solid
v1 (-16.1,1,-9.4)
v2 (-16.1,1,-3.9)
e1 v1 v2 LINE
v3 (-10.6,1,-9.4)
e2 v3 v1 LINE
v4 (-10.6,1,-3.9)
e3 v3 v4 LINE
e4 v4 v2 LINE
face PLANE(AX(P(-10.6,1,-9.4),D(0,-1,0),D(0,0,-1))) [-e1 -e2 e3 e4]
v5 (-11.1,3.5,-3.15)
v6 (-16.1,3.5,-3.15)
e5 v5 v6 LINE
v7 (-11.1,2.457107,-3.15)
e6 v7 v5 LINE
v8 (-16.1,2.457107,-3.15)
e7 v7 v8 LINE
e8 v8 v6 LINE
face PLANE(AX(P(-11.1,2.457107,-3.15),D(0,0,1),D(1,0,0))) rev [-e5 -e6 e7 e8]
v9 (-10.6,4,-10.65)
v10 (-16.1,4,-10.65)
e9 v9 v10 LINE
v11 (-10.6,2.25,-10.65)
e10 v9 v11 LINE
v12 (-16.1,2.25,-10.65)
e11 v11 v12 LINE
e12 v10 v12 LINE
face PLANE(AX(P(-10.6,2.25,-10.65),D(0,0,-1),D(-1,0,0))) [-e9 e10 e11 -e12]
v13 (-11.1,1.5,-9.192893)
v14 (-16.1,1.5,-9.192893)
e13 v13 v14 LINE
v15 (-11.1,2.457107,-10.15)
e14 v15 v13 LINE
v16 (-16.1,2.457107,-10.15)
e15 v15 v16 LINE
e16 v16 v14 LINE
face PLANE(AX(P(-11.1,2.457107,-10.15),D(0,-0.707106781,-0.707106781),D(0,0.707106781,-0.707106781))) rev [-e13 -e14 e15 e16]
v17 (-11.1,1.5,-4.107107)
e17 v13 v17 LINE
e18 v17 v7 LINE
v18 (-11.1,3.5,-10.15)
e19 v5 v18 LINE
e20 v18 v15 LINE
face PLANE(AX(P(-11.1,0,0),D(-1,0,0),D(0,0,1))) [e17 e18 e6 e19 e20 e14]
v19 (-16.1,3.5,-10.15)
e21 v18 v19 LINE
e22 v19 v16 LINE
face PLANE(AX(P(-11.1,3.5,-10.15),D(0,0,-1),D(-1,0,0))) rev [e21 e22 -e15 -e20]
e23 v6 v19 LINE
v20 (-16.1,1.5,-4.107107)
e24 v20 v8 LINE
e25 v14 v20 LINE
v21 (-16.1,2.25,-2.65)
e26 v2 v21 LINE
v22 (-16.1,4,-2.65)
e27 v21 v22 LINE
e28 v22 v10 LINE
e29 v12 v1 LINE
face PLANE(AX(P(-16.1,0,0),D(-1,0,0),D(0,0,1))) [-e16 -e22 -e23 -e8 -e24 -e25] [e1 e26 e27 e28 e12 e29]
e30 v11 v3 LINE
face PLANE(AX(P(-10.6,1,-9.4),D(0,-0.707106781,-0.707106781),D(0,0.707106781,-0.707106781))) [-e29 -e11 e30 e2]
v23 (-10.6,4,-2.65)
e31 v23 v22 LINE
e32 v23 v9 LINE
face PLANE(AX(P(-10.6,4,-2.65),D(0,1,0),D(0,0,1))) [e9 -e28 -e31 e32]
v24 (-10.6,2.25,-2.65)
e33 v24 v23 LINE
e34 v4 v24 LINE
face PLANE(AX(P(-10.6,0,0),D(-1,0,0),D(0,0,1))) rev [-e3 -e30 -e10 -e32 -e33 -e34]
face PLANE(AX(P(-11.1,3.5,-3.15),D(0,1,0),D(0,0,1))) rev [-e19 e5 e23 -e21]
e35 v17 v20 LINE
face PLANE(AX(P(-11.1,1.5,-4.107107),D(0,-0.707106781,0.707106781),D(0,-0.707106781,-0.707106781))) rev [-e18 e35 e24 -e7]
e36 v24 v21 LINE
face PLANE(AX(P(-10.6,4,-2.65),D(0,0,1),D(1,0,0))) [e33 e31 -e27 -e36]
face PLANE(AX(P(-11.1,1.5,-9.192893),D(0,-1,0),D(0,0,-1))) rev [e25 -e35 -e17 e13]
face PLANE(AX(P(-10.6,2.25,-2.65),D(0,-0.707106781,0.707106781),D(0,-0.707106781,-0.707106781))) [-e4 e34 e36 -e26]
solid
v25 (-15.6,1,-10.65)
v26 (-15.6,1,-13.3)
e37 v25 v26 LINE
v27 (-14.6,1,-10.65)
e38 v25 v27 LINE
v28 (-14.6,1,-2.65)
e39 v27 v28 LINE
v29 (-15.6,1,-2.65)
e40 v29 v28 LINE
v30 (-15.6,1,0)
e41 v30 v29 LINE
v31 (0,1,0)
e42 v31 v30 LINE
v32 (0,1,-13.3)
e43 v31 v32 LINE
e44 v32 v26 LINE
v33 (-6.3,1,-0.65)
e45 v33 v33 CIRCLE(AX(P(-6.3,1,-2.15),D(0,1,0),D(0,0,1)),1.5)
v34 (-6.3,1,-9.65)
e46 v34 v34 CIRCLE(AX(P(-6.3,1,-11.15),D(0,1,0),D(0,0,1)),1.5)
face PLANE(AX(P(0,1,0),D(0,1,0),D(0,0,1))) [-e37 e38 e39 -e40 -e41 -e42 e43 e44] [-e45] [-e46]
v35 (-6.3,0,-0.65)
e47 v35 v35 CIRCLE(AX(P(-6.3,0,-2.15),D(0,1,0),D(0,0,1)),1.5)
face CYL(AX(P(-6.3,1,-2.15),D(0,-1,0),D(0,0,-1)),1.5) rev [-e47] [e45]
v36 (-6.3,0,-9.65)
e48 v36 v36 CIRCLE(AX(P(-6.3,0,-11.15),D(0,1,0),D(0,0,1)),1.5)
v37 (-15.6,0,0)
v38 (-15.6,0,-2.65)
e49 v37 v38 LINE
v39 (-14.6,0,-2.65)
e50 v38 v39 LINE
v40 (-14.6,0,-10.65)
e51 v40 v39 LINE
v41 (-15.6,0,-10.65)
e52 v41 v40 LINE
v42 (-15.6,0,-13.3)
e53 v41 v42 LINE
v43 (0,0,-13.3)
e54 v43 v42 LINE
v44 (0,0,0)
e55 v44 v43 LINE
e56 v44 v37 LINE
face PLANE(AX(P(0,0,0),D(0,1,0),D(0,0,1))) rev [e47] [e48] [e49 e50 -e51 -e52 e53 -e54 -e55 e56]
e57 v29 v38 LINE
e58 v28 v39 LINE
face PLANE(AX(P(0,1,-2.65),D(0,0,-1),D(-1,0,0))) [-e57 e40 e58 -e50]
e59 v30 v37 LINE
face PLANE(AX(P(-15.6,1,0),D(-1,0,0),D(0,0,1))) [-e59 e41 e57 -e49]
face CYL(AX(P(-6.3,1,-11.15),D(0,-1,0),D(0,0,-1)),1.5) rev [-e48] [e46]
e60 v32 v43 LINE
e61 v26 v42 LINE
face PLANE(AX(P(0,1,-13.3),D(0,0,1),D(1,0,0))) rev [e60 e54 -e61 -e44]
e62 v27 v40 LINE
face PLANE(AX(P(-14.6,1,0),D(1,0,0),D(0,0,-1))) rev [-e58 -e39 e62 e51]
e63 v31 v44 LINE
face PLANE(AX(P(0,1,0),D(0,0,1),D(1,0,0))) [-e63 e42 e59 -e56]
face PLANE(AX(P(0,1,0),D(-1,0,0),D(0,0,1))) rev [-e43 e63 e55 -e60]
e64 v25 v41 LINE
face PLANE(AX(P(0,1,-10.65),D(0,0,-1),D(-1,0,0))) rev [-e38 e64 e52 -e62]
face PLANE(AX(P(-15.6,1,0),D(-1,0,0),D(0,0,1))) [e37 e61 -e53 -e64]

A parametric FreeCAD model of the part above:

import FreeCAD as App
import Part
import Sketcher


def add_polygon(sketch, points):
    """Adds a closed chain of lines whose ends are joined by coincident constraints."""
    first, n = sketch.GeometryCount, len(points)
    for a, b in zip(points, points[1:] + points[:1]):
        sketch.addGeometry(Part.LineSegment(App.Vector(*a, 0), App.Vector(*b, 0)), False)
    for i in range(n):
        sketch.addConstraint(Sketcher.Constraint("Coincident", first + i, 2, first + (i + 1) % n, 1))

doc = App.newDocument("Part")
params = doc.addObject("Spreadsheet::Sheet", "Params")
for row, (alias, value) in enumerate([
    ("sketch1_diameter", "3 mm"),
    ("sketch1_width", "1 mm"),
    ("sketch1_height", "8 mm"),
    ("sketch1_width2", "15.6 mm"),
    ("sketch1_height2", "13.3 mm"),
    ("pad1_length", "1 mm"),
    ("sketch2_height", "8 mm"),
    ("sketch2_height2", "5.5 mm"),
    ("pad2_length", "5.5 mm"),
    ("sketch3_height", "7 mm"),
    ("pocket1_length", "5 mm"),
], start=1):
    params.set(f"A{row}", alias)
    params.set(f"B{row}", "=" + value)
    params.setAlias(f"B{row}", alias)

body = doc.addObject("PartDesign::Body", "Body")

sketch1 = doc.addObject("Sketcher::SketchObject", "Sketch")
body.addObject(sketch1)
sketch1.AttachmentSupport = (doc.XZ_Plane, [""])
sketch1.MapMode = "FlatFace"
add_polygon(sketch1, [(-15.6, 0), (0, 0), (0, -13.3), (-15.6, -13.3), (-15.6, -10.65), (-14.6, -10.65), (-14.6, -2.65), (-15.6, -2.65)])
sketch1.addGeometry(Part.Circle(App.Vector(-6.3, -2.15, 0), App.Vector(0, 0, 1), 1.5), False)
sketch1.addGeometry(Part.Circle(App.Vector(-6.3, -11.15, 0), App.Vector(0, 0, 1), 1.5), False)
sketch1.addConstraint(Sketcher.Constraint("Horizontal", 0))
sketch1.addConstraint(Sketcher.Constraint("Vertical", 1))
sketch1.addConstraint(Sketcher.Constraint("Horizontal", 2))
sketch1.addConstraint(Sketcher.Constraint("Vertical", 3))
sketch1.addConstraint(Sketcher.Constraint("Horizontal", 4))
sketch1.addConstraint(Sketcher.Constraint("Vertical", 5))
sketch1.addConstraint(Sketcher.Constraint("Horizontal", 6))
sketch1.addConstraint(Sketcher.Constraint("Vertical", 7))
sketch1.addConstraint(Sketcher.Constraint("Coincident", 0, 2, -1, 1))
sketch1.addConstraint(Sketcher.Constraint("Equal", 8, 9))
sketch1.addConstraint(Sketcher.Constraint("Vertical", 8, 3, 9, 3))
sketch1.addConstraint(Sketcher.Constraint("Vertical", 3, 2, 6, 2))
sketch1.addConstraint(Sketcher.Constraint("Equal", 3, 7))
sketch1.addConstraint(Sketcher.Constraint("Diameter", 8, 3.0))
sketch1.addConstraint(Sketcher.Constraint("DistanceX", 4, 1, 4, 2, 1.0))
sketch1.addConstraint(Sketcher.Constraint("DistanceY", 5, 1, 5, 2, 8.0))
sketch1.addConstraint(Sketcher.Constraint("DistanceX", 0, 1, 0, 2, 15.6))
sketch1.addConstraint(Sketcher.Constraint("DistanceY", 1, 2, 1, 1, 13.3))
sketch1.addConstraint(Sketcher.Constraint("DistanceY", 9, 3, 8, 3, 9.0))
sketch1.addConstraint(Sketcher.Constraint("DistanceX", 8, 3, -1, 1, 6.3))
sketch1.addConstraint(Sketcher.Constraint("DistanceY", 9, 3, 3, 2, 0.5))
sketch1.setExpression("Constraints[21]", "Params.sketch1_diameter")
sketch1.setExpression("Constraints[22]", "Params.sketch1_width")
sketch1.setExpression("Constraints[23]", "Params.sketch1_height")
sketch1.setExpression("Constraints[24]", "Params.sketch1_width2")
sketch1.setExpression("Constraints[25]", "Params.sketch1_height2")
pad1 = doc.addObject("PartDesign::Pad", "Pad")
body.addObject(pad1)
pad1.Profile = sketch1
pad1.setExpression("Length", "Params.pad1_length")
pad1.Reversed = True
body2 = doc.addObject("PartDesign::Body", "Body001")

sketch2 = doc.addObject("Sketcher::SketchObject", "Sketch001")
body2.addObject(sketch2)
sketch2.AttachmentSupport = (doc.getObject("YZ_Plane001"), [""])
sketch2.MapMode = "FlatFace"
sketch2.AttachmentOffset = App.Placement(App.Vector(0, 0, -16.1), App.Rotation())
add_polygon(sketch2, [(4, -2.65), (4, -10.65), (2.25, -10.65), (1, -9.4), (1, -3.9), (2.25, -2.65)])
sketch2.addConstraint(Sketcher.Constraint("Vertical", 0))
sketch2.addConstraint(Sketcher.Constraint("Horizontal", 1))
sketch2.addConstraint(Sketcher.Constraint("Vertical", 3))
sketch2.addConstraint(Sketcher.Constraint("Horizontal", 5))
sketch2.addConstraint(Sketcher.Constraint("Perpendicular", 2, 4))
sketch2.addConstraint(Sketcher.Constraint("Vertical", 1, 2, 4, 2))
sketch2.addConstraint(Sketcher.Constraint("Equal", 2, 4))
sketch2.addConstraint(Sketcher.Constraint("DistanceY", 0, 2, 0, 1, 8.0))
sketch2.addConstraint(Sketcher.Constraint("DistanceY", 3, 1, 3, 2, 5.5))
sketch2.addConstraint(Sketcher.Constraint("DistanceX", -1, 1, 0, 2, 4.0))
sketch2.addConstraint(Sketcher.Constraint("DistanceX", -1, 1, 2, 2, 1.0))
sketch2.addConstraint(Sketcher.Constraint("DistanceY", 2, 2, -1, 1, 9.4))
sketch2.setExpression("Constraints[13]", "Params.sketch2_height")
sketch2.setExpression("Constraints[14]", "Params.sketch2_height2")
pad2 = doc.addObject("PartDesign::Pad", "Pad001")
body2.addObject(pad2)
pad2.Profile = sketch2
pad2.setExpression("Length", "Params.pad2_length")

sketch3 = doc.addObject("Sketcher::SketchObject", "Sketch002")
body2.addObject(sketch3)
sketch3.AttachmentSupport = (doc.getObject("YZ_Plane001"), [""])
sketch3.MapMode = "FlatFace"
sketch3.AttachmentOffset = App.Placement(App.Vector(0, 0, -16.1), App.Rotation())
add_polygon(sketch3, [(3.5, -10.15), (2.457107, -10.15), (1.5, -9.192893), (1.5, -4.107107), (2.457107, -3.15), (3.5, -3.15)])
sketch3.addConstraint(Sketcher.Constraint("Horizontal", 0))
sketch3.addConstraint(Sketcher.Constraint("Vertical", 2))
sketch3.addConstraint(Sketcher.Constraint("Horizontal", 4))
sketch3.addConstraint(Sketcher.Constraint("Vertical", 5))
sketch3.addConstraint(Sketcher.Constraint("Perpendicular", 1, 3))
sketch3.addConstraint(Sketcher.Constraint("Vertical", 0, 2, 3, 2))
sketch3.addConstraint(Sketcher.Constraint("Equal", 1, 3))
sketch3.addConstraint(Sketcher.Constraint("DistanceY", 5, 2, 5, 1, 7.0))
sketch3.addConstraint(Sketcher.Constraint("DistanceX", 2, 2, 4, 2, 2.0))
sketch3.addConstraint(Sketcher.Constraint("DistanceX", -1, 1, 1, 2, 1.5))
sketch3.addConstraint(Sketcher.Constraint("DistanceY", 0, 2, -1, 1, 10.15))
sketch3.addConstraint(Sketcher.Constraint("DistanceX", 0, 2, 0, 1, 1.042893))
sketch3.setExpression("Constraints[13]", "Params.sketch3_height")
pocket1 = doc.addObject("PartDesign::Pocket", "Pocket")
body2.addObject(pocket1)
pocket1.Profile = sketch3
pocket1.setExpression("Length", "Params.pocket1_length")
pocket1.Reversed = True

doc.recompute()
